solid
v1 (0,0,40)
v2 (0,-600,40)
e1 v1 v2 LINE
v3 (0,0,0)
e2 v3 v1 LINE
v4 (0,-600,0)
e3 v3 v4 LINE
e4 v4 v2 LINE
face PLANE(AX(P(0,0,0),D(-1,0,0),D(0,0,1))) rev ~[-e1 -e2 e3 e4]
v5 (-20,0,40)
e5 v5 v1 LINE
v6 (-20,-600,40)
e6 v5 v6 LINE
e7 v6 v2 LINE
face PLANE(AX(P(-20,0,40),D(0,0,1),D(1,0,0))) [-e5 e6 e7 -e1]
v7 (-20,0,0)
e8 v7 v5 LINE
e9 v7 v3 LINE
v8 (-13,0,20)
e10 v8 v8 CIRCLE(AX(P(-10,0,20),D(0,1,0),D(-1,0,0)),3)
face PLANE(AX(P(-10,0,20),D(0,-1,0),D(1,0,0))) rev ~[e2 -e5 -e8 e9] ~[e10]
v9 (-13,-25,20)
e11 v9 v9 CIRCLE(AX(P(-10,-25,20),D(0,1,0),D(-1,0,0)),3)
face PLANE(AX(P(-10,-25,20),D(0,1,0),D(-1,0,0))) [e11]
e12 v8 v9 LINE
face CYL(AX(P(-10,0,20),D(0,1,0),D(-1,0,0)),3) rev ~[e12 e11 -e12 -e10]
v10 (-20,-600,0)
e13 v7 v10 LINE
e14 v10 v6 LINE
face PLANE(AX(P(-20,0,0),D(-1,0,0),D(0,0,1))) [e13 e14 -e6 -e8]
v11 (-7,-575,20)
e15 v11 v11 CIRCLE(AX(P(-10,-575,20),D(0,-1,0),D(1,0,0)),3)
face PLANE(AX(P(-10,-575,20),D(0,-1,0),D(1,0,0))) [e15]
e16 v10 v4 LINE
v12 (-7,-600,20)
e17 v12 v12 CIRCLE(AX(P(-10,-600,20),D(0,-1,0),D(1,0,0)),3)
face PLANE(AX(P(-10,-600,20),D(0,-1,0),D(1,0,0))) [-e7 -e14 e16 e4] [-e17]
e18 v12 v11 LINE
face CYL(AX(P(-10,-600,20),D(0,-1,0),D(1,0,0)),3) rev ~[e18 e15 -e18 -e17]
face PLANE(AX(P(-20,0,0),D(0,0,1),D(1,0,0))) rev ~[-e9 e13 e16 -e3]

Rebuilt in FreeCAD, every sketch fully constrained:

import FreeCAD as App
import Part
import Sketcher
from FreeCAD import Vector


def add_polygon(sketch, points):
    """Adds a closed chain of lines whose ends are joined by coincident constraints."""
    first, n = sketch.GeometryCount, len(points)
    for a, b in zip(points, points[1:] + points[:1]):
        sketch.addGeometry(Part.LineSegment(App.Vector(*a, 0), App.Vector(*b, 0)), False)
    for i in range(n):
        sketch.addConstraint(Sketcher.Constraint("Coincident", first + i, 2, first + (i + 1) % n, 1))

doc = App.newDocument("Part")
body = doc.addObject("PartDesign::Body", "Body")

# Sketch on XZ plane
sketch1 = doc.addObject("Sketcher::SketchObject", "Sketch")
body.addObject(sketch1)
sketch1.AttachmentSupport = (doc.XZ_Plane, [""])
sketch1.MapMode = "FlatFace"
add_polygon(sketch1, [(-20, 40), (-20, 0), (0, 0), (0, 40)])  # lines 0-3
sketch1.addConstraint(Sketcher.Constraint("Vertical", 0))
sketch1.addConstraint(Sketcher.Constraint("Horizontal", 1))
sketch1.addConstraint(Sketcher.Constraint("Vertical", 2))
sketch1.addConstraint(Sketcher.Constraint("Horizontal", 3))
sketch1.addConstraint(Sketcher.Constraint("Coincident", 1, 2, -1, 1))
sketch1.addConstraint(Sketcher.Constraint("DistanceX", 1, 1, 1, 2, 20.0))
sketch1.addConstraint(Sketcher.Constraint("DistanceY", 0, 2, 0, 1, 40.0))
pad1 = doc.addObject("PartDesign::Pad", "Pad")
body.addObject(pad1)
pad1.Profile = sketch1
pad1.Length = 600

# Sketch on XZ plane
sketch2 = doc.addObject("Sketcher::SketchObject", "Sketch001")
body.addObject(sketch2)
sketch2.AttachmentSupport = (doc.XZ_Plane, [""])
sketch2.MapMode = "FlatFace"
sketch2.addGeometry(Part.Circle(Vector(-10, 20, 0), Vector(0, 0, 1), 3), False)
sketch2.addConstraint(Sketcher.Constraint("Diameter", 0, 6.0))
sketch2.addConstraint(Sketcher.Constraint("DistanceX", 0, 3, -1, 1, 10.0))
sketch2.addConstraint(Sketcher.Constraint("DistanceY", -1, 1, 0, 3, 20.0))
pocket1 = doc.addObject("PartDesign::Pocket", "Pocket")
body.addObject(pocket1)
pocket1.Profile = sketch2
pocket1.Length = 25
pocket1.Reversed = True

# Sketch on XZ plane
sketch3 = doc.addObject("Sketcher::SketchObject", "Sketch002")
body.addObject(sketch3)
sketch3.AttachmentSupport = (doc.XZ_Plane, [""])
sketch3.MapMode = "FlatFace"
sketch3.AttachmentOffset = App.Placement(Vector(0, 0, 600), App.Rotation())
sketch3.addGeometry(Part.Circle(Vector(-10, 20, 0), Vector(0, 0, 1), 3), False)
sketch3.addConstraint(Sketcher.Constraint("Diameter", 0, 6.0))
sketch3.addConstraint(Sketcher.Constraint("DistanceX", 0, 3, -1, 1, 10.0))
sketch3.addConstraint(Sketcher.Constraint("DistanceY", -1, 1, 0, 3, 20.0))
pocket2 = doc.addObject("PartDesign::Pocket", "Pocket001")
body.addObject(pocket2)
pocket2.Profile = sketch3
pocket2.Length = 25

doc.recompute()
